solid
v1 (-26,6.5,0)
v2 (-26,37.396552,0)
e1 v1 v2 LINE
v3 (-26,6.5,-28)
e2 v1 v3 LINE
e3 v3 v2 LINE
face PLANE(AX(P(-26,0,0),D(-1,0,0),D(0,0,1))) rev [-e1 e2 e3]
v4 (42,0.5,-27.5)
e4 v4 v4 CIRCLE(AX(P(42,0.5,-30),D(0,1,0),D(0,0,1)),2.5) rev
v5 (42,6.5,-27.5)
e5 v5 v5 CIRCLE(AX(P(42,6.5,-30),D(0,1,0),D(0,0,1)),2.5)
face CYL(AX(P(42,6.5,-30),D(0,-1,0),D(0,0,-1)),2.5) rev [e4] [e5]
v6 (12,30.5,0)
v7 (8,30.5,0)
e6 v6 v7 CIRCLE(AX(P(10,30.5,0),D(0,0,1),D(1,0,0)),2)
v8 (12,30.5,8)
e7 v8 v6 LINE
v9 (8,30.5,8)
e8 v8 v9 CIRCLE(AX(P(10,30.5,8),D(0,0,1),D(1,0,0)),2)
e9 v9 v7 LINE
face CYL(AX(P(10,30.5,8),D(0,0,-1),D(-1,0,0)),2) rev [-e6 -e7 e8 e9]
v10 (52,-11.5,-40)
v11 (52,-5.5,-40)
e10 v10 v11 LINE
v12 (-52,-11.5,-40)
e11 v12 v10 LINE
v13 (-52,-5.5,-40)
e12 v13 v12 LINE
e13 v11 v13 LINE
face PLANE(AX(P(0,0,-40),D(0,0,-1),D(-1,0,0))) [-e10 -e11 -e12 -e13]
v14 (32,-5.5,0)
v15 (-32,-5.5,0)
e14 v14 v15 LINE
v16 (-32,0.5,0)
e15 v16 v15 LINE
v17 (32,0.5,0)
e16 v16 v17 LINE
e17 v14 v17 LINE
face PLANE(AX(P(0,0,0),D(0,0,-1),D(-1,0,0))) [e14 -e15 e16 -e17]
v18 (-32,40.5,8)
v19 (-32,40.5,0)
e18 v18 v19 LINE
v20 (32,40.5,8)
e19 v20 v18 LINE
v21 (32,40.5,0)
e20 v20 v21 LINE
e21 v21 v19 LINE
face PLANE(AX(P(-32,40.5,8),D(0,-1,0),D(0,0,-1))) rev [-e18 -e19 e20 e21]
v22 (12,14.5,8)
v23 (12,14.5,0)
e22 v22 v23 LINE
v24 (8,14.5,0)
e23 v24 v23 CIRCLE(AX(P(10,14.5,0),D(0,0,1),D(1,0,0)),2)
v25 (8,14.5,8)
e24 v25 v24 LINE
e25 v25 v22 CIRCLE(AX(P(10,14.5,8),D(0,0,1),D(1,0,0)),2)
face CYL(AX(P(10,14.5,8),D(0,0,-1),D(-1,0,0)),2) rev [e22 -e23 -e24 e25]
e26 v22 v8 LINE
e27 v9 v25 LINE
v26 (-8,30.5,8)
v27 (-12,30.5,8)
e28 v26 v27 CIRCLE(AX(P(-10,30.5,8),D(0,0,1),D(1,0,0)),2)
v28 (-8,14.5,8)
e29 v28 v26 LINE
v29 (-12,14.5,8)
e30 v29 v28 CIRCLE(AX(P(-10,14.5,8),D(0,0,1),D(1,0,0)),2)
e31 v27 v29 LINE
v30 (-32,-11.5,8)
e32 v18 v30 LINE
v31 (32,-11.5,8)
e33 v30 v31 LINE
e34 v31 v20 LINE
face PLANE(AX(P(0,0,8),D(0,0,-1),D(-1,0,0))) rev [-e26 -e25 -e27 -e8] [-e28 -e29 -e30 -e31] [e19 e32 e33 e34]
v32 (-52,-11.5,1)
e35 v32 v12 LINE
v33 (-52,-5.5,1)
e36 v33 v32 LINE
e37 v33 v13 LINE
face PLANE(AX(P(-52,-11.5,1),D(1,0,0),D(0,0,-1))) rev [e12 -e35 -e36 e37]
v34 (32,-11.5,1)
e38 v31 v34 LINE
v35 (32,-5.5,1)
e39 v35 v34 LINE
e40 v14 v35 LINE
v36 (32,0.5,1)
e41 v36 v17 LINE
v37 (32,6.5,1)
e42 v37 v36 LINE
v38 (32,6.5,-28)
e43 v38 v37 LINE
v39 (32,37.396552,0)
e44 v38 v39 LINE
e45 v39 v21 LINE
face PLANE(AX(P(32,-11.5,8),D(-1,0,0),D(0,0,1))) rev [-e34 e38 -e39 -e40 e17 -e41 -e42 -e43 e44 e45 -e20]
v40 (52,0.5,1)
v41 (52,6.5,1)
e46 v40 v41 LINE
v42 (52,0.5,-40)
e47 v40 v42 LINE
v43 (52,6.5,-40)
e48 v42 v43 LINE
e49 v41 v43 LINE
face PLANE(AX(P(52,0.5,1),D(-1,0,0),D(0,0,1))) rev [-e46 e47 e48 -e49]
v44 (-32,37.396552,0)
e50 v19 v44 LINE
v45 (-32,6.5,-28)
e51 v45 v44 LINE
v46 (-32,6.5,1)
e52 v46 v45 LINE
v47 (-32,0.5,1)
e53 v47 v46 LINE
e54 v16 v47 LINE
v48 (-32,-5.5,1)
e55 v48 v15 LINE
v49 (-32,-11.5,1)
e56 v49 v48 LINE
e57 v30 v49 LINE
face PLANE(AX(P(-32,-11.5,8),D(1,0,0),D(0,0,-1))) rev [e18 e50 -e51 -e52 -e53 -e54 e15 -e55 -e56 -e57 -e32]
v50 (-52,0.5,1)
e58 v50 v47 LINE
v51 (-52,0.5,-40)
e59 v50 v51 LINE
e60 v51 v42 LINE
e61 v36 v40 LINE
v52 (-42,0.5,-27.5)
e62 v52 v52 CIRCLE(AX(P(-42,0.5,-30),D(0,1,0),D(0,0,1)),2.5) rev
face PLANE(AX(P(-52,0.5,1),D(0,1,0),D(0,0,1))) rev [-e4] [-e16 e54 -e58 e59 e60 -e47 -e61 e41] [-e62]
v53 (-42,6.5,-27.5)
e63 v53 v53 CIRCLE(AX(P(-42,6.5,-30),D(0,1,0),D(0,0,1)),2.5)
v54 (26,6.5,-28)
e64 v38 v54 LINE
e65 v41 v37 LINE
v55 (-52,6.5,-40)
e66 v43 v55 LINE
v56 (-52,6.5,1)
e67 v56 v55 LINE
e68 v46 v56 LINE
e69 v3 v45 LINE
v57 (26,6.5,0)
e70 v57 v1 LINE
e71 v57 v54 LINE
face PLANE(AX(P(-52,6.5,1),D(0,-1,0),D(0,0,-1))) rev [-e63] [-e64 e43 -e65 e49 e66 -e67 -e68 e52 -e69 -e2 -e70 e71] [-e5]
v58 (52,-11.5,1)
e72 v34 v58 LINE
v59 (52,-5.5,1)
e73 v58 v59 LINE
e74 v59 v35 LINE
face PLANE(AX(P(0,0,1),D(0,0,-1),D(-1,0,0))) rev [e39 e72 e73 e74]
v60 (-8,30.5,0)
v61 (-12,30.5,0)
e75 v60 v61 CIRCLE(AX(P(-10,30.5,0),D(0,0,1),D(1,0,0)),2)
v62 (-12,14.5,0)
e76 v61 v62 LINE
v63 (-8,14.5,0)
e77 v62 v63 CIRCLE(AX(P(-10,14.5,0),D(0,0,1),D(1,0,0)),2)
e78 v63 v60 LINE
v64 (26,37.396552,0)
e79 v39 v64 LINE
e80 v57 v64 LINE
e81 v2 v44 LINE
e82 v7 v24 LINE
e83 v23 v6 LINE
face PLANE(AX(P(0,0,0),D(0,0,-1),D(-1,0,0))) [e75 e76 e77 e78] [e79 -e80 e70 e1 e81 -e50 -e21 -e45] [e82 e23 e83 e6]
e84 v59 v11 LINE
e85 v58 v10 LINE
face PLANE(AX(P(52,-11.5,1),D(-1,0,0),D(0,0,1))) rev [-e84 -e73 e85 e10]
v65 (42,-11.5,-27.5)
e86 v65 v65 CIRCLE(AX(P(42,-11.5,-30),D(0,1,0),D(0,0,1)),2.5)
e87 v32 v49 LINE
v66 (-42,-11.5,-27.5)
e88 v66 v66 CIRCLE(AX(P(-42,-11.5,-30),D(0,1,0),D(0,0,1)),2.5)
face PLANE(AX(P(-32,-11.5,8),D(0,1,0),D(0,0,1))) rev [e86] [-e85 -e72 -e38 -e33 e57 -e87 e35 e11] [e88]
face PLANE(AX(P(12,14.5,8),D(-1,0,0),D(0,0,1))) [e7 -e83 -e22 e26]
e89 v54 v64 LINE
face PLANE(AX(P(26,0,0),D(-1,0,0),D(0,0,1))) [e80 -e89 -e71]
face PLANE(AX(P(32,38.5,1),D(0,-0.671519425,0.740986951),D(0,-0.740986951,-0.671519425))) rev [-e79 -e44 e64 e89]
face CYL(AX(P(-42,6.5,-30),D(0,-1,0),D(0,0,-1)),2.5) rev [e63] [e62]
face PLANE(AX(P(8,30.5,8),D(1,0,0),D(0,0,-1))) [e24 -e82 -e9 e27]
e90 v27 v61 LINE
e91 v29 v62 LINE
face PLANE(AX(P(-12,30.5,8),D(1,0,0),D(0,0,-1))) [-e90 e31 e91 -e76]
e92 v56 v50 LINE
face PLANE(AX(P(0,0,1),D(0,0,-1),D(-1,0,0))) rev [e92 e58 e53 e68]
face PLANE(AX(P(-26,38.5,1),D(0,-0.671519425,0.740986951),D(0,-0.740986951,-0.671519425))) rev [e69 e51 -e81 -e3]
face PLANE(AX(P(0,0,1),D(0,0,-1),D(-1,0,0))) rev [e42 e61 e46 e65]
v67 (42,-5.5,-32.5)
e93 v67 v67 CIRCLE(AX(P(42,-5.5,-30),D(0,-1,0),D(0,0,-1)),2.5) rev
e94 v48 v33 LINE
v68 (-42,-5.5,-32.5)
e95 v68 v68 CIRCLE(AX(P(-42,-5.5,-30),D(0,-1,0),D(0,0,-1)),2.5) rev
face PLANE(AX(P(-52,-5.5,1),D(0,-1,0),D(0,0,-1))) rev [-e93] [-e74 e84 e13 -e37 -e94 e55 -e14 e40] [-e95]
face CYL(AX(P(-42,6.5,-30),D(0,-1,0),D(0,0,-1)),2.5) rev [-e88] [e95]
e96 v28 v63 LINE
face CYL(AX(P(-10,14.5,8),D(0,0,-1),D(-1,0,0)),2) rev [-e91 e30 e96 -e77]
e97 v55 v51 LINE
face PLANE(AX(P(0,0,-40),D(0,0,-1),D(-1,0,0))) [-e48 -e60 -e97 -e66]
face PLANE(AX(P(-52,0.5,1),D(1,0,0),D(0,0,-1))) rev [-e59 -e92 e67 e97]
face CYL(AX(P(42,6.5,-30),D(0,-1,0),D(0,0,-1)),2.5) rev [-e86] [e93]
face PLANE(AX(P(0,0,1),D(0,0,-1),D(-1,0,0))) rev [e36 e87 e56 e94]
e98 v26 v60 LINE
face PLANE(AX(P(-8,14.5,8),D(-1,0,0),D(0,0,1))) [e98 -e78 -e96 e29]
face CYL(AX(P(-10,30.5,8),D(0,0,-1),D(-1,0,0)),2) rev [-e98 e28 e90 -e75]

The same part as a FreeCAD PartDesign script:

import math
import FreeCAD as App
import Part
import Sketcher

doc = App.newDocument("Part")
body = doc.addObject("PartDesign::Body", "Body")

# Sketch on XY plane
sketch1 = doc.addObject("Sketcher::SketchObject", "Sketch")
body.addObject(sketch1)
sketch1.AttachmentSupport = (doc.XY_Plane, [""])
sketch1.MapMode = "FlatFace"
sketch1.addGeometry(Part.LineSegment(App.Vector(-32, 40, 0), App.Vector(-32, -12, 0)), False)
sketch1.addGeometry(Part.LineSegment(App.Vector(-32, -12, 0), App.Vector(32, -12, 0)), False)
sketch1.addGeometry(Part.LineSegment(App.Vector(32, -12, 0), App.Vector(32, 40, 0)), False)
sketch1.addGeometry(Part.LineSegment(App.Vector(32, 40, 0), App.Vector(-32, 40, 0)), False)
sketch1.addConstraint(Sketcher.Constraint("Coincident", 0, 2, 1, 1))
sketch1.addConstraint(Sketcher.Constraint("Coincident", 1, 2, 2, 1))
sketch1.addConstraint(Sketcher.Constraint("Coincident", 2, 2, 3, 1))
sketch1.addConstraint(Sketcher.Constraint("Coincident", 3, 2, 0, 1))
sketch1.addConstraint(Sketcher.Constraint("Vertical", 0))
sketch1.addConstraint(Sketcher.Constraint("Horizontal", 1))
sketch1.addConstraint(Sketcher.Constraint("Vertical", 2))
sketch1.addConstraint(Sketcher.Constraint("Horizontal", 3))
sketch1.addConstraint(Sketcher.Constraint("DistanceX", 1, 1, 1, 2, 64.0))
sketch1.addConstraint(Sketcher.Constraint("DistanceY", 0, 2, 0, 1, 52.0))
sketch1.addConstraint(Sketcher.Constraint("DistanceX", 0, 2, -1, 1, 32.0))
sketch1.addConstraint(Sketcher.Constraint("DistanceY", 0, 2, -1, 1, 11.5))
pad1 = doc.addObject("PartDesign::Pad", "Pad")
body.addObject(pad1)
pad1.Profile = sketch1
pad1.Length = 8

# Sketch on XY plane
sketch2 = doc.addObject("Sketcher::SketchObject", "Sketch001")
body.addObject(sketch2)
sketch2.AttachmentSupport = (doc.XY_Plane, [""])
sketch2.MapMode = "FlatFace"
sketch2.AttachmentOffset = App.Placement(App.Vector(0, 0, -40), App.Rotation())
sketch2.addGeometry(Part.LineSegment(App.Vector(-52, -6, 0), App.Vector(-52, -12, 0)), False)
sketch2.addGeometry(Part.LineSegment(App.Vector(-52, -12, 0), App.Vector(52, -12, 0)), False)
sketch2.addGeometry(Part.LineSegment(App.Vector(52, -12, 0), App.Vector(52, -6, 0)), False)
sketch2.addGeometry(Part.LineSegment(App.Vector(52, -6, 0), App.Vector(-52, -6, 0)), False)
sketch2.addConstraint(Sketcher.Constraint("Coincident", 0, 2, 1, 1))
sketch2.addConstraint(Sketcher.Constraint("Coincident", 1, 2, 2, 1))
sketch2.addConstraint(Sketcher.Constraint("Coincident", 2, 2, 3, 1))
sketch2.addConstraint(Sketcher.Constraint("Coincident", 3, 2, 0, 1))
sketch2.addConstraint(Sketcher.Constraint("Vertical", 0))
sketch2.addConstraint(Sketcher.Constraint("Horizontal", 1))
sketch2.addConstraint(Sketcher.Constraint("Vertical", 2))
sketch2.addConstraint(Sketcher.Constraint("Horizontal", 3))
sketch2.addConstraint(Sketcher.Constraint("DistanceX", 1, 1, 1, 2, 104.0))
sketch2.addConstraint(Sketcher.Constraint("DistanceY", 0, 2, 0, 1, 6.0))
sketch2.addConstraint(Sketcher.Constraint("DistanceX", 0, 2, -1, 1, 52.0))
sketch2.addConstraint(Sketcher.Constraint("DistanceY", 0, 2, -1, 1, 11.5))
pad2 = doc.addObject("PartDesign::Pad", "Pad001")
body.addObject(pad2)
pad2.Profile = sketch2
pad2.Length = 41

# Sketch on XY plane
sketch3 = doc.addObject("Sketcher::SketchObject", "Sketch002")
body.addObject(sketch3)
sketch3.AttachmentSupport = (doc.XY_Plane, [""])
sketch3.MapMode = "FlatFace"
sketch3.AttachmentOffset = App.Placement(App.Vector(0, 0, -40), App.Rotation())
sketch3.addGeometry(Part.LineSegment(App.Vector(-52, 6, 0), App.Vector(-52, 0, 0)), False)
sketch3.addGeometry(Part.LineSegment(App.Vector(-52, 0, 0), App.Vector(52, 0, 0)), False)
sketch3.addGeometry(Part.LineSegment(App.Vector(52, 0, 0), App.Vector(52, 6, 0)), False)
sketch3.addGeometry(Part.LineSegment(App.Vector(52, 6, 0), App.Vector(-52, 6, 0)), False)
sketch3.addConstraint(Sketcher.Constraint("Coincident", 0, 2, 1, 1))
sketch3.addConstraint(Sketcher.Constraint("Coincident", 1, 2, 2, 1))
sketch3.addConstraint(Sketcher.Constraint("Coincident", 2, 2, 3, 1))
sketch3.addConstraint(Sketcher.Constraint("Coincident", 3, 2, 0, 1))
sketch3.addConstraint(Sketcher.Constraint("Vertical", 0))
sketch3.addConstraint(Sketcher.Constraint("Horizontal", 1))
sketch3.addConstraint(Sketcher.Constraint("Vertical", 2))
sketch3.addConstraint(Sketcher.Constraint("Horizontal", 3))
sketch3.addConstraint(Sketcher.Constraint("DistanceX", 1, 1, 1, 2, 104.0))
sketch3.addConstraint(Sketcher.Constraint("DistanceY", 0, 2, 0, 1, 6.0))
sketch3.addConstraint(Sketcher.Constraint("DistanceX", 0, 2, -1, 1, 52.0))
sketch3.addConstraint(Sketcher.Constraint("DistanceY", -1, 1, 0, 2, 0.5))
pad3 = doc.addObject("PartDesign::Pad", "Pad002")
body.addObject(pad3)
pad3.Profile = sketch3
pad3.Length = 41

# Sketch on YZ plane
sketch4 = doc.addObject("Sketcher::SketchObject", "Sketch003")
body.addObject(sketch4)
sketch4.AttachmentSupport = (doc.YZ_Plane, [""])
sketch4.MapMode = "FlatFace"
sketch4.AttachmentOffset = App.Placement(App.Vector(0, 0, -32), App.Rotation())
sketch4.addGeometry(Part.LineSegment(App.Vector(6, 1, 0), App.Vector(6, -28, 0)), False)
sketch4.addGeometry(Part.LineSegment(App.Vector(6, -28, 0), App.Vector(38, 1, 0)), False)
sketch4.addGeometry(Part.LineSegment(App.Vector(38, 1, 0), App.Vector(6, 1, 0)), False)
sketch4.addConstraint(Sketcher.Constraint("Coincident", 0, 2, 1, 1))
sketch4.addConstraint(Sketcher.Constraint("Coincident", 1, 2, 2, 1))
sketch4.addConstraint(Sketcher.Constraint("Coincident", 2, 2, 0, 1))
sketch4.addConstraint(Sketcher.Constraint("Vertical", 0))
sketch4.addConstraint(Sketcher.Constraint("Horizontal", 2))
sketch4.addConstraint(Sketcher.Constraint("DistanceX", 2, 2, 2, 1, 32.0))
sketch4.addConstraint(Sketcher.Constraint("DistanceY", 0, 2, 0, 1, 29.0))
sketch4.addConstraint(Sketcher.Constraint("DistanceY", 0, 2, -1, 1, 28.0))
sketch4.addConstraint(Sketcher.Constraint("DistanceX", -1, 1, 0, 2, 6.5))
pad4 = doc.addObject("PartDesign::Pad", "Pad003")
body.addObject(pad4)
pad4.Profile = sketch4
pad4.Length = 6

# Sketch on YZ plane
sketch5 = doc.addObject("Sketcher::SketchObject", "Sketch004")
body.addObject(sketch5)
sketch5.AttachmentSupport = (doc.YZ_Plane, [""])
sketch5.MapMode = "FlatFace"
sketch5.AttachmentOffset = App.Placement(App.Vector(0, 0, 26), App.Rotation())
sketch5.addGeometry(Part.LineSegment(App.Vector(6, 1, 0), App.Vector(6, -28, 0)), False)
sketch5.addGeometry(Part.LineSegment(App.Vector(6, -28, 0), App.Vector(38, 1, 0)), False)
sketch5.addGeometry(Part.LineSegment(App.Vector(38, 1, 0), App.Vector(6, 1, 0)), False)
sketch5.addConstraint(Sketcher.Constraint("Coincident", 0, 2, 1, 1))
sketch5.addConstraint(Sketcher.Constraint("Coincident", 1, 2, 2, 1))
sketch5.addConstraint(Sketcher.Constraint("Coincident", 2, 2, 0, 1))
sketch5.addConstraint(Sketcher.Constraint("Vertical", 0))
sketch5.addConstraint(Sketcher.Constraint("Horizontal", 2))
sketch5.addConstraint(Sketcher.Constraint("DistanceX", 2, 2, 2, 1, 32.0))
sketch5.addConstraint(Sketcher.Constraint("DistanceY", 0, 2, 0, 1, 29.0))
sketch5.addConstraint(Sketcher.Constraint("DistanceY", 0, 2, -1, 1, 28.0))
sketch5.addConstraint(Sketcher.Constraint("DistanceX", -1, 1, 0, 2, 6.5))
pad5 = doc.addObject("PartDesign::Pad", "Pad004")
body.addObject(pad5)
pad5.Profile = sketch5
pad5.Length = 6

# Sketch on XY plane
sketch6 = doc.addObject("Sketcher::SketchObject", "Sketch005")
body.addObject(sketch6)
sketch6.AttachmentSupport = (doc.XY_Plane, [""])
sketch6.MapMode = "FlatFace"
sketch6.addGeometry(Part.LineSegment(App.Vector(-8, 14.5, 0), App.Vector(-8, 30.5, 0)), False)
sketch6.addGeometry(Part.ArcOfCircle(Part.Circle(App.Vector(-10, 30.5, 0), App.Vector(0, 0, 1), 2), math.radians(0), math.radians(180)), False)
sketch6.addGeometry(Part.LineSegment(App.Vector(-12, 30.5, 0), App.Vector(-12, 14.5, 0)), False)
sketch6.addGeometry(Part.ArcOfCircle(Part.Circle(App.Vector(-10, 14.5, 0), App.Vector(0, 0, 1), 2), math.radians(180), math.radians(360)), False)
sketch6.addGeometry(Part.LineSegment(App.Vector(12, 14.5, 0), App.Vector(12, 30.5, 0)), False)
sketch6.addGeometry(Part.ArcOfCircle(Part.Circle(App.Vector(10, 30.5, 0), App.Vector(0, 0, 1), 2), math.radians(0), math.radians(180)), False)
sketch6.addGeometry(Part.LineSegment(App.Vector(8, 30.5, 0), App.Vector(8, 14.5, 0)), False)
sketch6.addGeometry(Part.ArcOfCircle(Part.Circle(App.Vector(10, 14.5, 0), App.Vector(0, 0, 1), 2), math.radians(180), math.radians(360)), False)
sketch6.addConstraint(Sketcher.Constraint("Tangent", 0, 2, 1, 1))
sketch6.addConstraint(Sketcher.Constraint("Tangent", 1, 2, 2, 1))
sketch6.addConstraint(Sketcher.Constraint("Tangent", 2, 2, 3, 1))
sketch6.addConstraint(Sketcher.Constraint("Tangent", 3, 2, 0, 1))
sketch6.addConstraint(Sketcher.Constraint("Tangent", 4, 2, 5, 1))
sketch6.addConstraint(Sketcher.Constraint("Tangent", 5, 2, 6, 1))
sketch6.addConstraint(Sketcher.Constraint("Tangent", 6, 2, 7, 1))
sketch6.addConstraint(Sketcher.Constraint("Tangent", 7, 2, 4, 1))
sketch6.addConstraint(Sketcher.Constraint("Vertical", 0))
sketch6.addConstraint(Sketcher.Constraint("Vertical", 2))
sketch6.addConstraint(Sketcher.Constraint("Vertical", 4))
sketch6.addConstraint(Sketcher.Constraint("Vertical", 6))
sketch6.addConstraint(Sketcher.Constraint("Equal", 3, 5))
sketch6.addConstraint(Sketcher.Constraint("Symmetric", 1, 3, 5, 3, -2))
sketch6.addConstraint(Sketcher.Constraint("Horizontal", 3, 3, 7, 3))
sketch6.addConstraint(Sketcher.Constraint("Radius", 1, 2.0))
sketch6.addConstraint(Sketcher.Constraint("DistanceY", 0, 1, 0, 2, 16.0))
sketch6.addConstraint(Sketcher.Constraint("DistanceX", 1, 3, -1, 1, 10.0))
sketch6.addConstraint(Sketcher.Constraint("DistanceY", -1, 1, 1, 3, 30.5))
pocket1 = doc.addObject("PartDesign::Pocket", "Pocket")
body.addObject(pocket1)
pocket1.Profile = sketch6
pocket1.Length = 8
pocket1.Reversed = True

# Sketch on XZ plane
sketch7 = doc.addObject("Sketcher::SketchObject", "Sketch006")
body.addObject(sketch7)
sketch7.AttachmentSupport = (doc.XZ_Plane, [""])
sketch7.MapMode = "FlatFace"
sketch7.AttachmentOffset = App.Placement(App.Vector(0, 0, 11.5), App.Rotation())
sketch7.addGeometry(Part.Circle(App.Vector(-42, -30, 0), App.Vector(0, 0, 1), 2.5), False)
sketch7.addGeometry(Part.Circle(App.Vector(42, -30, 0), App.Vector(0, 0, 1), 2.5), False)
sketch7.addConstraint(Sketcher.Constraint("Equal", 0, 1))
sketch7.addConstraint(Sketcher.Constraint("Symmetric", 0, 3, 1, 3, -2))
sketch7.addConstraint(Sketcher.Constraint("Diameter", 0, 5.0))
sketch7.addConstraint(Sketcher.Constraint("DistanceX", 0, 3, -1, 1, 42.0))
sketch7.addConstraint(Sketcher.Constraint("DistanceY", 0, 3, -1, 1, 30.0))
pocket2 = doc.addObject("PartDesign::Pocket", "Pocket001")
body.addObject(pocket2)
pocket2.Profile = sketch7
pocket2.Length = 18

doc.recompute()
